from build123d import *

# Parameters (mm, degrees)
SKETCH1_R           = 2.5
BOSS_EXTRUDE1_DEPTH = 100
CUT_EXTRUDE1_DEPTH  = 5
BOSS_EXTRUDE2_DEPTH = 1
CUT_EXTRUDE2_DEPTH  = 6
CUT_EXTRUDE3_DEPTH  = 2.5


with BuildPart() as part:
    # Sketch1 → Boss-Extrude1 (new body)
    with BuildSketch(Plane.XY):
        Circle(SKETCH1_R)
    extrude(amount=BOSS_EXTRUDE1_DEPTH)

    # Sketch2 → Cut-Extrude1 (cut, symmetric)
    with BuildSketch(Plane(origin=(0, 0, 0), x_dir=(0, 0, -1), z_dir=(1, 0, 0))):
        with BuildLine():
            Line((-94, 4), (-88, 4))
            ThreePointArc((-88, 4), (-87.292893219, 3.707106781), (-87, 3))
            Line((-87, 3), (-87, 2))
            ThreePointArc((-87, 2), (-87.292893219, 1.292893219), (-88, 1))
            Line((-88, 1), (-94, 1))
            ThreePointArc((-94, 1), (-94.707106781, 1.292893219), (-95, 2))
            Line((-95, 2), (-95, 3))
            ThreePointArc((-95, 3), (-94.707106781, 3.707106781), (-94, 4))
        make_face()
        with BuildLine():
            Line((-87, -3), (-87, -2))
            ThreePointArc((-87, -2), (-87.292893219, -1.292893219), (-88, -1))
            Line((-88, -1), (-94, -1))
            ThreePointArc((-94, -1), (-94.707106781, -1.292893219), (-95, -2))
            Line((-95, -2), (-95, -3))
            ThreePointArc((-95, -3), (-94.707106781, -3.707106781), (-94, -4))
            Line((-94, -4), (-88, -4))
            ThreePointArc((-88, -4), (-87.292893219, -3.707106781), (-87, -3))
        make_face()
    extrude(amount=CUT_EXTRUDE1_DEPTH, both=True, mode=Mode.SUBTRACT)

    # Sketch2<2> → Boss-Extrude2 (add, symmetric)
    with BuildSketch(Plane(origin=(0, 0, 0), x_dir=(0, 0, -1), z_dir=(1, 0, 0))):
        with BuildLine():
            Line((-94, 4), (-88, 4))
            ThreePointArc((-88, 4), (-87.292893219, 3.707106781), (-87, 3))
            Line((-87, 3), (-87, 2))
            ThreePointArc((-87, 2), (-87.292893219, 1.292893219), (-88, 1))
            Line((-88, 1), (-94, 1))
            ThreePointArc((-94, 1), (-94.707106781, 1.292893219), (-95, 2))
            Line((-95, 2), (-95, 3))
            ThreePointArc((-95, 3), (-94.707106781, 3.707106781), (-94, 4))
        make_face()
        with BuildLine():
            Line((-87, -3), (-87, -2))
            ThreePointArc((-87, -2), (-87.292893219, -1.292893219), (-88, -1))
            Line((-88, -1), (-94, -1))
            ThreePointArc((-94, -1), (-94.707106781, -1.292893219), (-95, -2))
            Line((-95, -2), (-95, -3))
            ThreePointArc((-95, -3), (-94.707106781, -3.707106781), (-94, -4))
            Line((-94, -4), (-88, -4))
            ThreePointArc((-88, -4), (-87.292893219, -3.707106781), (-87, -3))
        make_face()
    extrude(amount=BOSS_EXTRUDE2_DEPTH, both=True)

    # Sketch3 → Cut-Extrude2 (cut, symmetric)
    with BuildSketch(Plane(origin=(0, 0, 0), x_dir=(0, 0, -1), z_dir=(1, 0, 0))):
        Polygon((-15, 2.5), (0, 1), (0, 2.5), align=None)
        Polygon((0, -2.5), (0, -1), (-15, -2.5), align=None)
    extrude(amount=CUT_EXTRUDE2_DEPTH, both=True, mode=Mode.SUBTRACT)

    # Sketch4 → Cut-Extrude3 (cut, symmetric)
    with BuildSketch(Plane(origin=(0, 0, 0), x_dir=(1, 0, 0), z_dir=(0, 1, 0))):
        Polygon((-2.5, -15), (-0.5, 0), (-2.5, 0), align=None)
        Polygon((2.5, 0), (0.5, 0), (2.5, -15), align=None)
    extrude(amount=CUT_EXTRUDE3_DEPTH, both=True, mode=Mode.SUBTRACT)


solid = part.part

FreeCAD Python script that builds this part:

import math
import FreeCAD as App
import Part
import Sketcher
from FreeCAD import Vector
Q = App.Units.Quantity


def add_polygon(sketch, points):
    """Adds a closed chain of lines whose ends are joined by coincident constraints."""
    first, n = sketch.GeometryCount, len(points)
    for a, b in zip(points, points[1:] + points[:1]):
        sketch.addGeometry(Part.LineSegment(App.Vector(*a, 0), App.Vector(*b, 0)), False)
    for i in range(n):
        sketch.addConstraint(Sketcher.Constraint("Coincident", first + i, 2, first + (i + 1) % n, 1))

doc = App.newDocument("Part")
body = doc.addObject("PartDesign::Body", "Body")

# Sketch on XY plane
sketch1 = doc.addObject("Sketcher::SketchObject", "Sketch")
body.addObject(sketch1)
sketch1.AttachmentSupport = (doc.XY_Plane, [""])
sketch1.MapMode = "FlatFace"
sketch1.addGeometry(Part.Circle(Vector(0, 0, 0), Vector(0, 0, 1), 2.5), False)
sketch1.addConstraint([
    Sketcher.Constraint("Coincident", 0, 3, -1, 1),
    Sketcher.Constraint("Diameter", 0, Q("5 mm")),
])
pad1 = doc.addObject("PartDesign::Pad", "Pad")
body.addObject(pad1)
pad1.Profile = sketch1
pad1.Length = 100

# Sketch on YZ plane
sketch2 = doc.addObject("Sketcher::SketchObject", "Sketch001")
body.addObject(sketch2)
sketch2.AttachmentSupport = (doc.YZ_Plane, [""])
sketch2.MapMode = "FlatFace"
sketch2.addGeometry([
    Part.LineSegment(Vector(4, 88, 0), Vector(4, 94, 0)),  # 0
    Part.ArcOfCircle(Part.Circle(Vector(3, 94, 0), Vector(0, 0, 1), 1), math.radians(0), math.radians(90)),  # 1
    Part.LineSegment(Vector(3, 95, 0), Vector(2, 95, 0)),  # 2
    Part.ArcOfCircle(Part.Circle(Vector(2, 94, 0), Vector(0, 0, 1), 1), math.radians(90), math.radians(180)),  # 3
    Part.LineSegment(Vector(1, 94, 0), Vector(1, 88, 0)),  # 4
    Part.ArcOfCircle(Part.Circle(Vector(2, 88, 0), Vector(0, 0, 1), 1), math.radians(-180), math.radians(-90)),  # 5
    Part.LineSegment(Vector(2, 87, 0), Vector(3, 87, 0)),  # 6
    Part.ArcOfCircle(Part.Circle(Vector(3, 88, 0), Vector(0, 0, 1), 1), math.radians(-90), math.radians(0)),  # 7
    Part.LineSegment(Vector(-3, 87, 0), Vector(-2, 87, 0)),  # 8
    Part.ArcOfCircle(Part.Circle(Vector(-2, 88, 0), Vector(0, 0, 1), 1), math.radians(-90), math.radians(0)),  # 9
    Part.LineSegment(Vector(-1, 88, 0), Vector(-1, 94, 0)),  # 10
    Part.ArcOfCircle(Part.Circle(Vector(-2, 94, 0), Vector(0, 0, 1), 1), math.radians(0), math.radians(90)),  # 11
    Part.LineSegment(Vector(-2, 95, 0), Vector(-3, 95, 0)),  # 12
    Part.ArcOfCircle(Part.Circle(Vector(-3, 94, 0), Vector(0, 0, 1), 1), math.radians(90), math.radians(180)),  # 13
    Part.LineSegment(Vector(-4, 94, 0), Vector(-4, 88, 0)),  # 14
    Part.ArcOfCircle(Part.Circle(Vector(-3, 88, 0), Vector(0, 0, 1), 1), math.radians(-180), math.radians(-90)),  # 15
], False)
sketch2.addConstraint([
    Sketcher.Constraint("Tangent", 0, 2, 1, 1),
    Sketcher.Constraint("Tangent", 1, 2, 2, 1),
    Sketcher.Constraint("Tangent", 2, 2, 3, 1),
    Sketcher.Constraint("Tangent", 3, 2, 4, 1),
    Sketcher.Constraint("Tangent", 4, 2, 5, 1),
    Sketcher.Constraint("Tangent", 5, 2, 6, 1),
    Sketcher.Constraint("Tangent", 6, 2, 7, 1),
    Sketcher.Constraint("Tangent", 7, 2, 0, 1),
    Sketcher.Constraint("Tangent", 8, 2, 9, 1),
    Sketcher.Constraint("Tangent", 9, 2, 10, 1),
    Sketcher.Constraint("Tangent", 10, 2, 11, 1),
    Sketcher.Constraint("Tangent", 11, 2, 12, 1),
    Sketcher.Constraint("Tangent", 12, 2, 13, 1),
    Sketcher.Constraint("Tangent", 13, 2, 14, 1),
    Sketcher.Constraint("Tangent", 14, 2, 15, 1),
    Sketcher.Constraint("Tangent", 15, 2, 8, 1),
    Sketcher.Constraint("Vertical", 0),
    Sketcher.Constraint("Horizontal", 2),
    Sketcher.Constraint("Vertical", 4),
    Sketcher.Constraint("Horizontal", 6),
    Sketcher.Constraint("Horizontal", 8),
    Sketcher.Constraint("Vertical", 10),
    Sketcher.Constraint("Horizontal", 12),
    Sketcher.Constraint("Vertical", 14),
    Sketcher.Constraint("Equal", 1, 3),
    Sketcher.Constraint("Equal", 3, 5),
    Sketcher.Constraint("Equal", 5, 7),
    Sketcher.Constraint("Equal", 7, 9),
    Sketcher.Constraint("Equal", 9, 11),
    Sketcher.Constraint("Equal", 11, 13),
    Sketcher.Constraint("Equal", 13, 15),
    Sketcher.Constraint("Symmetric", 5, 3, 9, 3, -2),
    Sketcher.Constraint("Symmetric", 1, 3, 13, 3, -2),
    Sketcher.Constraint("Radius", 1, Q("1 mm")),
    Sketcher.Constraint("DistanceX", 2, 2, 2, 1, Q("1 mm")),
    Sketcher.Constraint("DistanceY", 0, 1, 0, 2, Q("6 mm")),
    Sketcher.Constraint("DistanceX", -1, 1, 1, 3, Q("3 mm")),
    Sketcher.Constraint("DistanceY", -1, 1, 1, 3, Q("94 mm")),
])
pocket1 = doc.addObject("PartDesign::Pocket", "Pocket")
body.addObject(pocket1)
pocket1.Profile = sketch2
pocket1.Length = 10
pocket1.Midplane = True

# Sketch on YZ plane
sketch3 = doc.addObject("Sketcher::SketchObject", "Sketch002")
body.addObject(sketch3)
sketch3.AttachmentSupport = (doc.YZ_Plane, [""])
sketch3.MapMode = "FlatFace"
sketch3.addGeometry([
    Part.LineSegment(Vector(4, 88, 0), Vector(4, 94, 0)),  # 0
    Part.ArcOfCircle(Part.Circle(Vector(3, 94, 0), Vector(0, 0, 1), 1), math.radians(0), math.radians(90)),  # 1
    Part.LineSegment(Vector(3, 95, 0), Vector(2, 95, 0)),  # 2
    Part.ArcOfCircle(Part.Circle(Vector(2, 94, 0), Vector(0, 0, 1), 1), math.radians(90), math.radians(180)),  # 3
    Part.LineSegment(Vector(1, 94, 0), Vector(1, 88, 0)),  # 4
    Part.ArcOfCircle(Part.Circle(Vector(2, 88, 0), Vector(0, 0, 1), 1), math.radians(-180), math.radians(-90)),  # 5
    Part.LineSegment(Vector(2, 87, 0), Vector(3, 87, 0)),  # 6
    Part.ArcOfCircle(Part.Circle(Vector(3, 88, 0), Vector(0, 0, 1), 1), math.radians(-90), math.radians(0)),  # 7
    Part.LineSegment(Vector(-3, 87, 0), Vector(-2, 87, 0)),  # 8
    Part.ArcOfCircle(Part.Circle(Vector(-2, 88, 0), Vector(0, 0, 1), 1), math.radians(-90), math.radians(0)),  # 9
    Part.LineSegment(Vector(-1, 88, 0), Vector(-1, 94, 0)),  # 10
    Part.ArcOfCircle(Part.Circle(Vector(-2, 94, 0), Vector(0, 0, 1), 1), math.radians(0), math.radians(90)),  # 11
    Part.LineSegment(Vector(-2, 95, 0), Vector(-3, 95, 0)),  # 12
    Part.ArcOfCircle(Part.Circle(Vector(-3, 94, 0), Vector(0, 0, 1), 1), math.radians(90), math.radians(180)),  # 13
    Part.LineSegment(Vector(-4, 94, 0), Vector(-4, 88, 0)),  # 14
    Part.ArcOfCircle(Part.Circle(Vector(-3, 88, 0), Vector(0, 0, 1), 1), math.radians(-180), math.radians(-90)),  # 15
], False)
sketch3.addConstraint([
    Sketcher.Constraint("Tangent", 0, 2, 1, 1),
    Sketcher.Constraint("Tangent", 1, 2, 2, 1),
    Sketcher.Constraint("Tangent", 2, 2, 3, 1),
    Sketcher.Constraint("Tangent", 3, 2, 4, 1),
    Sketcher.Constraint("Tangent", 4, 2, 5, 1),
    Sketcher.Constraint("Tangent", 5, 2, 6, 1),
    Sketcher.Constraint("Tangent", 6, 2, 7, 1),
    Sketcher.Constraint("Tangent", 7, 2, 0, 1),
    Sketcher.Constraint("Tangent", 8, 2, 9, 1),
    Sketcher.Constraint("Tangent", 9, 2, 10, 1),
    Sketcher.Constraint("Tangent", 10, 2, 11, 1),
    Sketcher.Constraint("Tangent", 11, 2, 12, 1),
    Sketcher.Constraint("Tangent", 12, 2, 13, 1),
    Sketcher.Constraint("Tangent", 13, 2, 14, 1),
    Sketcher.Constraint("Tangent", 14, 2, 15, 1),
    Sketcher.Constraint("Tangent", 15, 2, 8, 1),
    Sketcher.Constraint("Vertical", 0),
    Sketcher.Constraint("Horizontal", 2),
    Sketcher.Constraint("Vertical", 4),
    Sketcher.Constraint("Horizontal", 6),
    Sketcher.Constraint("Horizontal", 8),
    Sketcher.Constraint("Vertical", 10),
    Sketcher.Constraint("Horizontal", 12),
    Sketcher.Constraint("Vertical", 14),
    Sketcher.Constraint("Equal", 1, 3),
    Sketcher.Constraint("Equal", 3, 5),
    Sketcher.Constraint("Equal", 5, 7),
    Sketcher.Constraint("Equal", 7, 9),
    Sketcher.Constraint("Equal", 9, 11),
    Sketcher.Constraint("Equal", 11, 13),
    Sketcher.Constraint("Equal", 13, 15),
    Sketcher.Constraint("Symmetric", 5, 3, 9, 3, -2),
    Sketcher.Constraint("Symmetric", 1, 3, 13, 3, -2),
    Sketcher.Constraint("Radius", 1, Q("1 mm")),
    Sketcher.Constraint("DistanceX", 2, 2, 2, 1, Q("1 mm")),
    Sketcher.Constraint("DistanceY", 0, 1, 0, 2, Q("6 mm")),
    Sketcher.Constraint("DistanceX", -1, 1, 1, 3, Q("3 mm")),
    Sketcher.Constraint("DistanceY", -1, 1, 1, 3, Q("94 mm")),
])
pad2 = doc.addObject("PartDesign::Pad", "Pad001")
body.addObject(pad2)
pad2.Profile = sketch3
pad2.Length = 2
pad2.Midplane = True

# Sketch on YZ plane
sketch4 = doc.addObject("Sketcher::SketchObject", "Sketch003")
body.addObject(sketch4)
sketch4.AttachmentSupport = (doc.YZ_Plane, [""])
sketch4.MapMode = "FlatFace"
add_polygon(sketch4, [(2.5, 15), (1, 0), (2.5, 0)])  # lines 0-2
add_polygon(sketch4, [(-2.5, 0), (-1, 0), (-2.5, 15)])  # lines 3-5
sketch4.addConstraint([
    Sketcher.Constraint("Horizontal", 1),
    Sketcher.Constraint("Vertical", 2),
    Sketcher.Constraint("Horizontal", 3),
    Sketcher.Constraint("Vertical", 5),
    Sketcher.Constraint("Symmetric", 0, 2, 3, 2, -1, 1),
    Sketcher.Constraint("Symmetric", 2, 2, 4, 2, -2),
    Sketcher.Constraint("PointOnObject", 0, 2, -1),
    Sketcher.Constraint("DistanceY", 2, 1, 2, 2, Q("15 mm")),
    Sketcher.Constraint("DistanceX", 1, 1, 1, 2, Q("1.5 mm")),
    Sketcher.Constraint("DistanceX", -1, 1, 0, 2, Q("1 mm")),
])
pocket2 = doc.addObject("PartDesign::Pocket", "Pocket001")
body.addObject(pocket2)
pocket2.Profile = sketch4
pocket2.Length = 12
pocket2.Midplane = True

# Sketch on XZ plane
sketch5 = doc.addObject("Sketcher::SketchObject", "Sketch004")
body.addObject(sketch5)
sketch5.AttachmentSupport = (doc.XZ_Plane, [""])
sketch5.MapMode = "FlatFace"
add_polygon(sketch5, [(-2.5, 15), (-0.5, 0), (-2.5, 0)])  # lines 0-2
add_polygon(sketch5, [(2.5, 0), (0.5, 0), (2.5, 15)])  # lines 3-5
sketch5.addConstraint([
    Sketcher.Constraint("Horizontal", 1),
    Sketcher.Constraint("Vertical", 2),
    Sketcher.Constraint("Horizontal", 3),
    Sketcher.Constraint("Vertical", 5),
    Sketcher.Constraint("Symmetric", 0, 2, 3, 2, -1, 1),
    Sketcher.Constraint("Symmetric", 2, 2, 4, 2, -2),
    Sketcher.Constraint("PointOnObject", 0, 2, -1),
    Sketcher.Constraint("DistanceX", 1, 2, 1, 1, Q("2 mm")),
    Sketcher.Constraint("DistanceY", 2, 1, 2, 2, Q("15 mm")),
    Sketcher.Constraint("DistanceX", 0, 2, 3, 2, Q("1 mm")),
])
pocket3 = doc.addObject("PartDesign::Pocket", "Pocket002")
body.addObject(pocket3)
pocket3.Profile = sketch5
pocket3.Length = 5
pocket3.Midplane = True

doc.recompute()
